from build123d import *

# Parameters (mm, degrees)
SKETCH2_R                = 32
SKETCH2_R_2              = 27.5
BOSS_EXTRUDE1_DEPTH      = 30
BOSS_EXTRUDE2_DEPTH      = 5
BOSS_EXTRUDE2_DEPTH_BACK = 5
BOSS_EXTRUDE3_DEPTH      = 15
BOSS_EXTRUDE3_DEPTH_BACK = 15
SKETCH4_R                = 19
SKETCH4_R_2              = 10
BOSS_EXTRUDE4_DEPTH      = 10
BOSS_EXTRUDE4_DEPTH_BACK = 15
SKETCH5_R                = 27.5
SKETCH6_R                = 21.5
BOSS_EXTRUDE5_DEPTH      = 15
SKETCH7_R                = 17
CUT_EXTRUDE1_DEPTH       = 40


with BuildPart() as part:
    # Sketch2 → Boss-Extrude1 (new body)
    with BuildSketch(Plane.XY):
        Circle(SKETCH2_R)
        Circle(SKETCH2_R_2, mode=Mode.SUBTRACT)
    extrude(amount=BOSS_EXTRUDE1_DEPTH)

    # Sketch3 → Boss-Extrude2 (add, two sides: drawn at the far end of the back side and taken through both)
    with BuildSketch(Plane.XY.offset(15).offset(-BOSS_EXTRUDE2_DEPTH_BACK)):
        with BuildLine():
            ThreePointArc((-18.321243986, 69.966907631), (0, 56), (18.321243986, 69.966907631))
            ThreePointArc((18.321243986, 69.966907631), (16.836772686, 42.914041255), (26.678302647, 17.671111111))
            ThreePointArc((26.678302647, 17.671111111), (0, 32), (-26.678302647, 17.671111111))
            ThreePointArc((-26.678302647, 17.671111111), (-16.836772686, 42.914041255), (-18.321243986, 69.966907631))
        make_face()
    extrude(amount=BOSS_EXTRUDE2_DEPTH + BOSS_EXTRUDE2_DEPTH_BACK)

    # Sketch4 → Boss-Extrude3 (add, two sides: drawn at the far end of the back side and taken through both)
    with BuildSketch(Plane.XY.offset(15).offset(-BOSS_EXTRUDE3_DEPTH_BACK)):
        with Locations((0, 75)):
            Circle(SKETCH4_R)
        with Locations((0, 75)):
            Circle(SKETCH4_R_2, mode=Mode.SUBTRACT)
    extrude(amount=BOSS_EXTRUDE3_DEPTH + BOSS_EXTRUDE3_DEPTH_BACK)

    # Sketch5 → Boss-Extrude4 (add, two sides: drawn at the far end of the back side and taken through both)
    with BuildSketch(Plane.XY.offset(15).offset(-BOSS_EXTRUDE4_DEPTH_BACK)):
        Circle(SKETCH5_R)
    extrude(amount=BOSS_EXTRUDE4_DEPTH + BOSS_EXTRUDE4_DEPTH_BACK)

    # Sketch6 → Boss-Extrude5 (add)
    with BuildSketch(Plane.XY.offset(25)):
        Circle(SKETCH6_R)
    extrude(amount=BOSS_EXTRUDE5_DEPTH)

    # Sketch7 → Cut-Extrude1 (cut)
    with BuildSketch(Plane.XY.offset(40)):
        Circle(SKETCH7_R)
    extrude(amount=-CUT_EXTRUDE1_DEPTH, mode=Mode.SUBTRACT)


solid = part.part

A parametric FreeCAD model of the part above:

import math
import FreeCAD as App
import Part
import Sketcher
Q = App.Units.Quantity

doc = App.newDocument("Part")
body = doc.addObject("PartDesign::Body", "Body")

# Sketch on XY plane
sketch1 = body.newObject("Sketcher::SketchObject", "Sketch")
sketch1.AttachmentSupport = (doc.getObject("XY_Plane"), [""])
sketch1.MapMode = "FlatFace"
sketch1.addGeometry([
    Part.Circle(App.Vector(0, 0, 0), App.Vector(0, 0, 1), 32),
    Part.Circle(App.Vector(0, 0, 0), App.Vector(0, 0, 1), 27.5),
], False)
sketch1.addConstraint([
    Sketcher.Constraint("Coincident", 0, 3, -1, 1),
    Sketcher.Constraint("Coincident", 1, 3, -1, 1),
    Sketcher.Constraint("Diameter", 0, Q("64 mm")),
    Sketcher.Constraint("Diameter", 1, Q("55 mm")),
])
pad1 = body.newObject("PartDesign::Pad", "Pad")
pad1.Profile = sketch1
pad1.Length = 30

# Sketch on XY plane
sketch2 = body.newObject("Sketcher::SketchObject", "Sketch001")
sketch2.AttachmentSupport = (doc.getObject("XY_Plane"), [""])
sketch2.MapMode = "FlatFace"
sketch2.AttachmentOffset = App.Placement(App.Vector(0, 0, 15), App.Rotation())
sketch2.addGeometry([
    Part.ArcOfCircle(Part.Circle(App.Vector(0, 75, 0), App.Vector(0, 0, 1), 19), math.radians(-164.639013), math.radians(-15.360987)),
    Part.ArcOfCircle(Part.Circle(App.Vector(-80.034908, 53.013333, 0), App.Vector(0, 0, 1), 64), math.radians(-33.519601), math.radians(15.360987)),
    Part.ArcOfCircle(Part.Circle(App.Vector(0, 0, 0), App.Vector(0, 0, 1), 32), math.radians(33.519601), math.radians(146.480399)),
    Part.ArcOfCircle(Part.Circle(App.Vector(80.034908, 53.013333, 0), App.Vector(0, 0, 1), 64), math.radians(164.639013), math.radians(213.519601)),
], False)
sketch2.addConstraint([
    Sketcher.Constraint("Tangent", 0, 1, 1, 2),
    Sketcher.Constraint("Tangent", 1, 1, 2, 2),
    Sketcher.Constraint("Tangent", 2, 1, 3, 2),
    Sketcher.Constraint("Tangent", 3, 1, 0, 2),
    Sketcher.Constraint("Coincident", 2, 3, -1, 1),
    Sketcher.Constraint("Equal", 1, 3),
    Sketcher.Constraint("PointOnObject", 0, 3, -2),
    Sketcher.Constraint("Radius", 0, Q("19 mm")),
    Sketcher.Constraint("Radius", 1, Q("64 mm")),
    Sketcher.Constraint("Radius", 2, Q("32 mm")),
    Sketcher.Constraint("DistanceY", -1, 1, 0, 3, Q("75 mm")),
])
pad2 = body.newObject("PartDesign::Pad", "Pad001")
pad2.Profile = sketch2
pad2.Type = "TwoLengths"
pad2.Length = 5
pad2.Length2 = 5

# Sketch on XY plane
sketch3 = body.newObject("Sketcher::SketchObject", "Sketch002")
sketch3.AttachmentSupport = (doc.getObject("XY_Plane"), [""])
sketch3.MapMode = "FlatFace"
sketch3.AttachmentOffset = App.Placement(App.Vector(0, 0, 15), App.Rotation())
sketch3.addGeometry([
    Part.Circle(App.Vector(0, 75, 0), App.Vector(0, 0, 1), 19),
    Part.Circle(App.Vector(0, 75, 0), App.Vector(0, 0, 1), 10),
], False)
sketch3.addConstraint([
    Sketcher.Constraint("Coincident", 1, 3, 0, 3),
    Sketcher.Constraint("PointOnObject", 0, 3, -2),
    Sketcher.Constraint("Diameter", 0, Q("38 mm")),
    Sketcher.Constraint("Diameter", 1, Q("20 mm")),
    Sketcher.Constraint("DistanceY", -1, 1, 0, 3, Q("75 mm")),
])
pad3 = body.newObject("PartDesign::Pad", "Pad002")
pad3.Profile = sketch3
pad3.Type = "TwoLengths"
pad3.Length = 15
pad3.Length2 = 15

# Sketch on XY plane
sketch4 = body.newObject("Sketcher::SketchObject", "Sketch003")
sketch4.AttachmentSupport = (doc.getObject("XY_Plane"), [""])
sketch4.MapMode = "FlatFace"
sketch4.AttachmentOffset = App.Placement(App.Vector(0, 0, 15), App.Rotation())
sketch4.addGeometry(Part.Circle(App.Vector(0, 0, 0), App.Vector(0, 0, 1), 27.5), False)
sketch4.addConstraint([
    Sketcher.Constraint("Coincident", 0, 3, -1, 1),
    Sketcher.Constraint("Diameter", 0, Q("55 mm")),
])
pad4 = body.newObject("PartDesign::Pad", "Pad003")
pad4.Profile = sketch4
pad4.Type = "TwoLengths"
pad4.Length = 10
pad4.Length2 = 15

# Sketch on XY plane
sketch5 = body.newObject("Sketcher::SketchObject", "Sketch004")
sketch5.AttachmentSupport = (doc.getObject("XY_Plane"), [""])
sketch5.MapMode = "FlatFace"
sketch5.AttachmentOffset = App.Placement(App.Vector(0, 0, 25), App.Rotation())
sketch5.addGeometry(Part.Circle(App.Vector(0, 0, 0), App.Vector(0, 0, 1), 21.5), False)
sketch5.addConstraint([
    Sketcher.Constraint("Coincident", 0, 3, -1, 1),
    Sketcher.Constraint("Diameter", 0, Q("43 mm")),
])
pad5 = body.newObject("PartDesign::Pad", "Pad004")
pad5.Profile = sketch5
pad5.Length = 15

# Sketch on XY plane
sketch6 = body.newObject("Sketcher::SketchObject", "Sketch005")
sketch6.AttachmentSupport = (doc.getObject("XY_Plane"), [""])
sketch6.MapMode = "FlatFace"
sketch6.AttachmentOffset = App.Placement(App.Vector(0, 0, 40), App.Rotation())
sketch6.addGeometry(Part.Circle(App.Vector(0, 0, 0), App.Vector(0, 0, 1), 17), False)
sketch6.addConstraint([
    Sketcher.Constraint("Coincident", 0, 3, -1, 1),
    Sketcher.Constraint("Diameter", 0, Q("34 mm")),
])
pocket1 = body.newObject("PartDesign::Pocket", "Pocket")
pocket1.Profile = sketch6
pocket1.Length = 40

doc.recompute()
